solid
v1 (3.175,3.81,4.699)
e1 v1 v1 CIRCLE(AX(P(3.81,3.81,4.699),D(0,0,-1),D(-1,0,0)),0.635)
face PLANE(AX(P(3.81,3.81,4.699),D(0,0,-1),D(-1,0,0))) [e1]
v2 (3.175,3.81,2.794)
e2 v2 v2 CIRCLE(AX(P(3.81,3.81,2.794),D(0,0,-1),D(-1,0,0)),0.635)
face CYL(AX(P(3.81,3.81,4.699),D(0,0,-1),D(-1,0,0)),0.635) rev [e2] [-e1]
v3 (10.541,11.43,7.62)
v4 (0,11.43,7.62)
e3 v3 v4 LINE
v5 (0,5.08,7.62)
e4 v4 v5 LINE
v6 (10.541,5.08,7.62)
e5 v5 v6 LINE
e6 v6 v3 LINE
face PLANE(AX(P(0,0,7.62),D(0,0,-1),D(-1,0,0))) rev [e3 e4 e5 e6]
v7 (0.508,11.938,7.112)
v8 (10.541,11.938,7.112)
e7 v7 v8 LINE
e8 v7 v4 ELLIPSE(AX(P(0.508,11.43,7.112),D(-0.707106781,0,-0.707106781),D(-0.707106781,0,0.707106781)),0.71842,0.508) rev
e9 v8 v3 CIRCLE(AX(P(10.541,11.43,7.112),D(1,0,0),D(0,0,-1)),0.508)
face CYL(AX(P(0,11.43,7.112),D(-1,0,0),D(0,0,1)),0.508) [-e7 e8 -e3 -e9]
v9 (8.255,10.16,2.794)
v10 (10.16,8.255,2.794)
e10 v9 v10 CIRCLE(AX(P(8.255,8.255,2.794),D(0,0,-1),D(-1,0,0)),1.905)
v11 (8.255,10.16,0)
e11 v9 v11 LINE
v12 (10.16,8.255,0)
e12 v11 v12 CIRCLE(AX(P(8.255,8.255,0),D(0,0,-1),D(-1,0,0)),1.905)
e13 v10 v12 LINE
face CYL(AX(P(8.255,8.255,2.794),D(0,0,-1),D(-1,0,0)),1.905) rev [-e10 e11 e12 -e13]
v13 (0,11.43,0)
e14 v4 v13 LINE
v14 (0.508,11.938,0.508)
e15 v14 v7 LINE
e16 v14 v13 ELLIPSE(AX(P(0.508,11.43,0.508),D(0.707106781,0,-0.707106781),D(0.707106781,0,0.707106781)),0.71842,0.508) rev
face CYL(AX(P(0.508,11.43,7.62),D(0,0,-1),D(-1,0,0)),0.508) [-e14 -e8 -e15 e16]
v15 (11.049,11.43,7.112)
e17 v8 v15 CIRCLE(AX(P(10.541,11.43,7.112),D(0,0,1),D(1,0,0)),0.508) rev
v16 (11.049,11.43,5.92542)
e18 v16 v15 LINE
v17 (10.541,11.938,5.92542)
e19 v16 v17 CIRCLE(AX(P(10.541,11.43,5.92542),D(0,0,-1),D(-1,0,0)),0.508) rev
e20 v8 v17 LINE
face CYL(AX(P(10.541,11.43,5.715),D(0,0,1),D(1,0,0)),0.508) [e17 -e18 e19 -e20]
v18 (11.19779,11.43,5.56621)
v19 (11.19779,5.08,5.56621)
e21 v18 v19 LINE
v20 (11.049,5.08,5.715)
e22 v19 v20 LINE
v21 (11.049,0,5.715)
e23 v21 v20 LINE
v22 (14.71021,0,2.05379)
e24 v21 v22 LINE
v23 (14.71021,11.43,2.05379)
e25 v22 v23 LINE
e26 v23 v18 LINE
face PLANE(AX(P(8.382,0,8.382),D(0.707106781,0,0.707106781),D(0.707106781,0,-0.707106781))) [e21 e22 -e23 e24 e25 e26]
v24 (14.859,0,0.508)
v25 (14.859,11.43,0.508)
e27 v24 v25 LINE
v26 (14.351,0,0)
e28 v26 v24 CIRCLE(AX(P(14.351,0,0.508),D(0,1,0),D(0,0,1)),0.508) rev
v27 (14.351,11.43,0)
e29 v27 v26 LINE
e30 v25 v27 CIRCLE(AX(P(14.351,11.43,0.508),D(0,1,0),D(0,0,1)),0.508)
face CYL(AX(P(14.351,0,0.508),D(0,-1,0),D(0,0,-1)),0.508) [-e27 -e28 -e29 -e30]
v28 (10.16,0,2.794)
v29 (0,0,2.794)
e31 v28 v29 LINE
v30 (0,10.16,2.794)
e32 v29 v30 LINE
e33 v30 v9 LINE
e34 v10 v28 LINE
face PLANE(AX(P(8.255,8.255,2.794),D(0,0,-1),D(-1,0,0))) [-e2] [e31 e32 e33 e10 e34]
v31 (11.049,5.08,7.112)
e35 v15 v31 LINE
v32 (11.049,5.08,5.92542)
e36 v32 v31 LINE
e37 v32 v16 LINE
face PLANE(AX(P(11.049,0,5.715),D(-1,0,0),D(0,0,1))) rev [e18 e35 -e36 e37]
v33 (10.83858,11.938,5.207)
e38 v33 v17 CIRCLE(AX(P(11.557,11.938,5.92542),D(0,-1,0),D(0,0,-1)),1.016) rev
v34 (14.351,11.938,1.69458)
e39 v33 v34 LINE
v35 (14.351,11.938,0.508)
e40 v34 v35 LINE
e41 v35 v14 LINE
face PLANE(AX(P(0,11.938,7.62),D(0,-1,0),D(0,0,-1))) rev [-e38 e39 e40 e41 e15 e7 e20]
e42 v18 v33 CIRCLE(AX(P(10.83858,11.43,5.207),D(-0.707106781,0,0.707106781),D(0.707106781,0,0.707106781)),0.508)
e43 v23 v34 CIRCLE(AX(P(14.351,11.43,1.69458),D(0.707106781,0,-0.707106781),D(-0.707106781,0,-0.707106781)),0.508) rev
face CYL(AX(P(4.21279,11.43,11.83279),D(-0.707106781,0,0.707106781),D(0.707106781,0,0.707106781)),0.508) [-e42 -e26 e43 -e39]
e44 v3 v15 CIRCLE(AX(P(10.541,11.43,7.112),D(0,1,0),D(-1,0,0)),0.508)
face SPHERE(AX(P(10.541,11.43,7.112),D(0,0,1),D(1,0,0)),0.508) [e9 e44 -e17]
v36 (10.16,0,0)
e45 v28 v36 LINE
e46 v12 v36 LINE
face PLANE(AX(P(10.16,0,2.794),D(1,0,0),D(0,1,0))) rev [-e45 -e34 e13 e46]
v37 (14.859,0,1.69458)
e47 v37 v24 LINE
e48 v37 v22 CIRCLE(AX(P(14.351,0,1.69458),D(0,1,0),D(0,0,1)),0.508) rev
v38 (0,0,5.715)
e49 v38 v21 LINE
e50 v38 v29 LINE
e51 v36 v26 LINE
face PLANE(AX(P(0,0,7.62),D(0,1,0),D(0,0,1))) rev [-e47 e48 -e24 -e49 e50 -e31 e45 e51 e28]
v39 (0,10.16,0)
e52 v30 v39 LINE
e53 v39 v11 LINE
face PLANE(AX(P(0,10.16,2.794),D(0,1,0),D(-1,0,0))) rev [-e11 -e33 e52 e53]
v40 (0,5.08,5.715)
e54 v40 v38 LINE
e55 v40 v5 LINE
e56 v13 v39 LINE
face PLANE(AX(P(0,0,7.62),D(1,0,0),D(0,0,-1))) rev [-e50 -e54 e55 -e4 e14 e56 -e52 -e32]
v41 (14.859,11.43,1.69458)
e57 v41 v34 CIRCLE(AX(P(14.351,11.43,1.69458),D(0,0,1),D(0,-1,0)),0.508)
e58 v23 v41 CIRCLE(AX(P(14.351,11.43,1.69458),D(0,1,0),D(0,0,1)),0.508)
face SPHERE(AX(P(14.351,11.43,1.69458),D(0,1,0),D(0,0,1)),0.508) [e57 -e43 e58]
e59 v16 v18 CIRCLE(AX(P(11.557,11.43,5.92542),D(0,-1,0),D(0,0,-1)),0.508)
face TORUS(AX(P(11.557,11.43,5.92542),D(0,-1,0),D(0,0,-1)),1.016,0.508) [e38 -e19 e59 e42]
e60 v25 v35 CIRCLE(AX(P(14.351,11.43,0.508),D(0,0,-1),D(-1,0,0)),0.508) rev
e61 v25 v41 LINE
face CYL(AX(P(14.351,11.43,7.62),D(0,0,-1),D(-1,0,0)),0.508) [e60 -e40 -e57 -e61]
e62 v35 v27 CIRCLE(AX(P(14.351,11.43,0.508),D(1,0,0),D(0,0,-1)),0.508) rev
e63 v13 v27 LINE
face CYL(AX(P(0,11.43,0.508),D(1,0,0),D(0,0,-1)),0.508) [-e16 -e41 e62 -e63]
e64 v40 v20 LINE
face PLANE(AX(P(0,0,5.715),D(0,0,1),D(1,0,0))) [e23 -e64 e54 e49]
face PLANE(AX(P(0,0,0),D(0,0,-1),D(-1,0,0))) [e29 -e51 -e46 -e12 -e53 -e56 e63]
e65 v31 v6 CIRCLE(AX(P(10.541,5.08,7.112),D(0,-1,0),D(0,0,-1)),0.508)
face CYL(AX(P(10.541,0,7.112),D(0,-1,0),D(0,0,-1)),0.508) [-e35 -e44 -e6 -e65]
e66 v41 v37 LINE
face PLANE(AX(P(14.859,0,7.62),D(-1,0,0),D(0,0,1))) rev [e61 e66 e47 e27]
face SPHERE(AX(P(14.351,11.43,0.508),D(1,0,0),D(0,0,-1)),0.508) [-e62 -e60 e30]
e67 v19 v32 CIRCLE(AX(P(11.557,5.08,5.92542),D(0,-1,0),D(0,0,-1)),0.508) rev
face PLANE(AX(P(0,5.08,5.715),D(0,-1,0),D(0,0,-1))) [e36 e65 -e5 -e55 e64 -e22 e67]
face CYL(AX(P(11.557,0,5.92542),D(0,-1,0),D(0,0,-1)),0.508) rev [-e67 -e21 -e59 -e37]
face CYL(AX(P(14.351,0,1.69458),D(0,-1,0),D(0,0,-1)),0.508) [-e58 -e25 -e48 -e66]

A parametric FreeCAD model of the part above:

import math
import FreeCAD as App
import Part
import Sketcher

V = App.Vector
Q = App.Units.Quantity


def edges_at(feature, points):
    """Names of the edges that pass closest to the given points."""
    edges = feature.Shape.Edges
    near = lambda p: min(range(len(edges)), key=lambda i: edges[i].distToShape(Part.Vertex(*p))[0])
    return sorted({f"Edge{near(p) + 1}" for p in points})


def add_polygon(sketch, points):
    """Adds a closed chain of lines whose ends are joined by coincident constraints."""
    first, n = sketch.GeometryCount, len(points)
    for a, b in zip(points, points[1:] + points[:1]):
        sketch.addGeometry(Part.LineSegment(App.Vector(*a, 0), App.Vector(*b, 0)), False)
    for i in range(n):
        sketch.addConstraint(Sketcher.Constraint("Coincident", first + i, 2, first + (i + 1) % n, 1))

doc = App.newDocument("Part")
params = doc.addObject("Spreadsheet::Sheet", "Params")
for row, (alias, value) in enumerate([
    ("sketch1_height", "0.47 in"),
    ("sketch1_width", "0.585 in"),
    ("pad1_length", "0.3 in"),
    ("sketch2_width", "0.4 in"),
    ("sketch2_radius", "0.075 in"),
    ("pocket1_length", "0.11 in"),
    ("sketch3_height", "0.2 in"),
    ("sketch3_width", "0.15 in"),
    ("sketch3_height2", "0.27 in"),
    ("sketch3_width2", "0.435 in"),
    ("pocket2_length", "0.075 in"),
    ("sketch4_width", "0.15 in"),
    ("fillet_radius", "0.02 in"),
    ("sketch5_diameter", "0.05 in"),
    ("pocket4_length", "0.075 in"),
], start=1):
    params.set(f"A{row}", alias)
    params.set(f"B{row}", "=" + value)
    params.setAlias(f"B{row}", alias)

body = doc.addObject("PartDesign::Body", "Body")

# Sketch on XY plane
sketch1 = body.newObject("Sketcher::SketchObject", "Sketch")
sketch1.AttachmentSupport = (doc.getObject("XY_Plane"), [""])
sketch1.MapMode = "FlatFace"
add_polygon(sketch1, [(0, 12), (0, 0), (15, 0), (15, 12)])  # lines 0-3
sketch1.addConstraint(Sketcher.Constraint("Vertical", 0))
sketch1.addConstraint(Sketcher.Constraint("Horizontal", 1))
sketch1.addConstraint(Sketcher.Constraint("Vertical", 2))
sketch1.addConstraint(Sketcher.Constraint("Horizontal", 3))
sketch1.addConstraint(Sketcher.Constraint("Coincident", 0, 2, -1, 1))
sketch1.addConstraint(Sketcher.Constraint("DistanceY", 0, 2, 0, 1, Q("0.47 in")))
sketch1.addConstraint(Sketcher.Constraint("DistanceX", 1, 1, 1, 2, Q("0.585 in")))
sketch1.setExpression("Constraints[9]", "Params.sketch1_height")
sketch1.setExpression("Constraints[10]", "Params.sketch1_width")
pad1 = body.newObject("PartDesign::Pad", "Pad")
pad1.Profile = sketch1
pad1.setExpression("Length", "Params.pad1_length")

# Sketch on XY plane
sketch2 = body.newObject("Sketcher::SketchObject", "Sketch001")
sketch2.AttachmentSupport = (doc.getObject("XY_Plane"), [""])
sketch2.MapMode = "FlatFace"
sketch2.addGeometry(Part.LineSegment(V(10.2, 0, 0), V(0, 0, 0)), False)
sketch2.addGeometry(Part.LineSegment(V(0, 0, 0), V(0, 10.2, 0)), False)
sketch2.addGeometry(Part.LineSegment(V(0, 10.2, 0), V(8.3, 10.2, 0)), False)
sketch2.addGeometry(Part.ArcOfCircle(Part.Circle(V(8.3, 8.3, 0), V(0, 0, 1), 1.9), math.radians(0), math.radians(90)), False)
sketch2.addGeometry(Part.LineSegment(V(10.2, 8.3, 0), V(10.2, 0, 0)), False)
sketch2.addConstraint(Sketcher.Constraint("Coincident", 0, 2, 1, 1))
sketch2.addConstraint(Sketcher.Constraint("Coincident", 1, 2, 2, 1))
sketch2.addConstraint(Sketcher.Constraint("Tangent", 2, 2, 3, 2))
sketch2.addConstraint(Sketcher.Constraint("Tangent", 3, 1, 4, 1))
sketch2.addConstraint(Sketcher.Constraint("Coincident", 4, 2, 0, 1))
sketch2.addConstraint(Sketcher.Constraint("Horizontal", 0))
sketch2.addConstraint(Sketcher.Constraint("Vertical", 1))
sketch2.addConstraint(Sketcher.Constraint("Horizontal", 2))
sketch2.addConstraint(Sketcher.Constraint("Vertical", 4))
sketch2.addConstraint(Sketcher.Constraint("Coincident", 0, 2, -1, 1))
sketch2.addConstraint(Sketcher.Constraint("Equal", 0, 1))
sketch2.addConstraint(Sketcher.Constraint("DistanceX", 0, 2, 0, 1, Q("0.4 in")))
sketch2.addConstraint(Sketcher.Constraint("Radius", 3, Q("0.075 in")))
sketch2.setExpression("Constraints[11]", "Params.sketch2_width")
sketch2.setExpression("Constraints[12]", "Params.sketch2_radius")
pocket1 = body.newObject("PartDesign::Pocket", "Pocket")
pocket1.Profile = sketch2
pocket1.setExpression("Length", "Params.pocket1_length")
pocket1.Reversed = True

# Sketch on XY plane
sketch3 = body.newObject("Sketcher::SketchObject", "Sketch002")
sketch3.AttachmentSupport = (doc.getObject("XY_Plane"), [""])
sketch3.MapMode = "FlatFace"
sketch3.AttachmentOffset = App.Placement(V(0, 0, 0.3 * 25.4), App.Rotation())
add_polygon(sketch3, [(14.9, 11.9), (11, 11.9), (11, 5.1), (0, 5.1), (0, 0), (14.9, 0)])  # lines 0-5
sketch3.addConstraint(Sketcher.Constraint("Horizontal", 0))
sketch3.addConstraint(Sketcher.Constraint("Vertical", 1))
sketch3.addConstraint(Sketcher.Constraint("Horizontal", 2))
sketch3.addConstraint(Sketcher.Constraint("Vertical", 3))
sketch3.addConstraint(Sketcher.Constraint("Horizontal", 4))
sketch3.addConstraint(Sketcher.Constraint("Vertical", 5))
sketch3.addConstraint(Sketcher.Constraint("Coincident", 3, 2, -1, 1))
sketch3.addConstraint(Sketcher.Constraint("DistanceY", 3, 2, 3, 1, Q("0.2 in")))
sketch3.addConstraint(Sketcher.Constraint("DistanceX", 0, 2, 0, 1, Q("0.15 in")))
sketch3.addConstraint(Sketcher.Constraint("DistanceY", 1, 2, 1, 1, Q("0.27 in")))
sketch3.addConstraint(Sketcher.Constraint("DistanceX", 2, 2, 2, 1, Q("0.435 in")))
sketch3.setExpression("Constraints[13]", "Params.sketch3_height")
sketch3.setExpression("Constraints[14]", "Params.sketch3_width")
sketch3.setExpression("Constraints[15]", "Params.sketch3_height2")
sketch3.setExpression("Constraints[16]", "Params.sketch3_width2")
pocket2 = body.newObject("PartDesign::Pocket", "Pocket001")
pocket2.Profile = sketch3
pocket2.setExpression("Length", "Params.pocket2_length")

# Sketch on XZ plane
sketch4 = body.newObject("Sketcher::SketchObject", "Sketch003")
sketch4.AttachmentSupport = (doc.getObject("XZ_Plane"), [""])
sketch4.MapMode = "FlatFace"
sketch4.AttachmentOffset = App.Placement(V(0, 0, -0.47 * 25.4), App.Rotation())
add_polygon(sketch4, [(14.9, 1.9), (11, 5.7), (14.9, 5.7)])  # lines 0-2
sketch4.addConstraint(Sketcher.Constraint("Horizontal", 1))
sketch4.addConstraint(Sketcher.Constraint("Vertical", 2))
sketch4.addConstraint(Sketcher.Constraint("Equal", 1, 2))
sketch4.addConstraint(Sketcher.Constraint("DistanceX", 1, 1, 1, 2, Q("0.15 in")))
sketch4.addConstraint(Sketcher.Constraint("DistanceX", -1, 1, 0, 2, Q("0.435 in")))
sketch4.addConstraint(Sketcher.Constraint("DistanceY", -1, 1, 0, 2, Q("0.225 in")))
sketch4.setExpression("Constraints[6]", "Params.sketch4_width")
pocket3 = body.newObject("PartDesign::Pocket", "Pocket002")
pocket3.Profile = sketch4
pocket3.Type = "ThroughAll"
pocket3.Reversed = True
doc.recompute()

fillet = body.newObject("PartDesign::Fillet", "Fillet")
fillet.Base = (pocket3, edges_at(pocket3, [
    (5.524, 11.938, 7.62),
    (11.049, 11.938, 6.668),
    (11.049, 8.509, 5.715),
    (11.049, 8.509, 7.62),
    (7.429, 11.938, 0),
    (14.859, 11.938, 0.953),
    (14.859, 5.969, 0),
    (12.954, 11.938, 3.81),
    (14.859, 5.969, 1.905),
    (0, 11.938, 3.81),
]))
fillet.setExpression("Radius", "Params.fillet_radius")

# Sketch on XY plane
sketch5 = body.newObject("Sketcher::SketchObject", "Sketch004")
sketch5.AttachmentSupport = (doc.getObject("XY_Plane"), [""])
sketch5.MapMode = "FlatFace"
sketch5.AttachmentOffset = App.Placement(V(0, 0, 0.11 * 25.4), App.Rotation())
sketch5.addGeometry(Part.Circle(V(3.8, 3.8, 0), V(0, 0, 1), 0.6), False)
sketch5.addConstraint(Sketcher.Constraint("Diameter", 0, Q("0.05 in")))
sketch5.addConstraint(Sketcher.Constraint("DistanceX", -1, 1, 0, 3, Q("0.15 in")))
sketch5.addConstraint(Sketcher.Constraint("DistanceY", -1, 1, 0, 3, Q("0.15 in")))
sketch5.setExpression("Constraints[0]", "Params.sketch5_diameter")
pocket4 = body.newObject("PartDesign::Pocket", "Pocket003")
pocket4.Profile = sketch5
pocket4.setExpression("Length", "Params.pocket4_length")
pocket4.Reversed = True

doc.recompute()
